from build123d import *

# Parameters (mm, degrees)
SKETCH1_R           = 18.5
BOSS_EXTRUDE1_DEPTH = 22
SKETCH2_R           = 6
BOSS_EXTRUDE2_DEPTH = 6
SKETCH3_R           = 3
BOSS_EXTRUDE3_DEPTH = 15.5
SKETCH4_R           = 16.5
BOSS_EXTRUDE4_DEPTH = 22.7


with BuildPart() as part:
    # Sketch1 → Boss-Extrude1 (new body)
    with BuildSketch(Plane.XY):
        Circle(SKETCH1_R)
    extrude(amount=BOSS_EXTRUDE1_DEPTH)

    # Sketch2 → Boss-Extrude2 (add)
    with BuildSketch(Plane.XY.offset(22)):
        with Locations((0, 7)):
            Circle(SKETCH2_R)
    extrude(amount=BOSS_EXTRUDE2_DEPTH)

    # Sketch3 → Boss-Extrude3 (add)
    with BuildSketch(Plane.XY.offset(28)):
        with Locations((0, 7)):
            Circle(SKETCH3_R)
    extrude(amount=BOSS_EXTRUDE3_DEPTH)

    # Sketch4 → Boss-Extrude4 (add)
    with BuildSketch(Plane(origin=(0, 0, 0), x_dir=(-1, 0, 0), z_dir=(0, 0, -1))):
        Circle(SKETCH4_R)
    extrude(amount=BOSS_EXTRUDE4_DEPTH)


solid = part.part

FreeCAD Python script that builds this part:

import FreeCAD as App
import Part
import Sketcher
Q = App.Units.Quantity

doc = App.newDocument("Part")
params = doc.addObject("Spreadsheet::Sheet", "Params")
for row, (alias, value) in enumerate([
    ("sketch1_diameter", "37 mm"),
    ("pad1_length", "22 mm"),
    ("sketch2_diameter", "12 mm"),
    ("pad2_length", "6 mm"),
    ("sketch3_diameter", "6 mm"),
    ("pad3_length", "15.5 mm"),
    ("sketch4_diameter", "33 mm"),
    ("pad4_length", "22.7 mm"),
], start=1):
    params.set(f"A{row}", alias)
    params.set(f"B{row}", "=" + value)
    params.setAlias(f"B{row}", alias)

body = doc.addObject("PartDesign::Body", "Body")

sketch1 = body.newObject("Sketcher::SketchObject", "Sketch")
sketch1.AttachmentSupport = (doc.getObject("XY_Plane"), [""])
sketch1.MapMode = "FlatFace"
sketch1.addGeometry(Part.Circle(App.Vector(0, 0, 0), App.Vector(0, 0, 1), 18), False)
sketch1.addConstraint(Sketcher.Constraint("Coincident", 0, 3, -1, 1))
sketch1.addConstraint(Sketcher.Constraint("Diameter", 0, Q("37 mm")))
sketch1.setExpression("Constraints[1]", "Params.sketch1_diameter")
pad1 = body.newObject("PartDesign::Pad", "Pad")
pad1.Profile = sketch1
pad1.setExpression("Length", "Params.pad1_length")

sketch2 = body.newObject("Sketcher::SketchObject", "Sketch001")
sketch2.AttachmentSupport = (doc.getObject("XY_Plane"), [""])
sketch2.MapMode = "FlatFace"
sketch2.AttachmentOffset = App.Placement(App.Vector(0, 0, 22), App.Rotation())
sketch2.addGeometry(Part.Circle(App.Vector(0, 7, 0), App.Vector(0, 0, 1), 6), False)
sketch2.addConstraint(Sketcher.Constraint("PointOnObject", 0, 3, -2))
sketch2.addConstraint(Sketcher.Constraint("Diameter", 0, Q("12 mm")))
sketch2.addConstraint(Sketcher.Constraint("DistanceY", -1, 1, 0, 3, Q("7 mm")))
sketch2.setExpression("Constraints[1]", "Params.sketch2_diameter")
pad2 = body.newObject("PartDesign::Pad", "Pad001")
pad2.Profile = sketch2
pad2.setExpression("Length", "Params.pad2_length")

sketch3 = body.newObject("Sketcher::SketchObject", "Sketch002")
sketch3.AttachmentSupport = (doc.getObject("XY_Plane"), [""])
sketch3.MapMode = "FlatFace"
sketch3.AttachmentOffset = App.Placement(App.Vector(0, 0, 28), App.Rotation())
sketch3.addGeometry(Part.Circle(App.Vector(0, 7, 0), App.Vector(0, 0, 1), 3), False)
sketch3.addConstraint(Sketcher.Constraint("PointOnObject", 0, 3, -2))
sketch3.addConstraint(Sketcher.Constraint("Diameter", 0, Q("6 mm")))
sketch3.addConstraint(Sketcher.Constraint("DistanceY", -1, 1, 0, 3, Q("7 mm")))
sketch3.setExpression("Constraints[1]", "Params.sketch3_diameter")
pad3 = body.newObject("PartDesign::Pad", "Pad002")
pad3.Profile = sketch3
pad3.setExpression("Length", "Params.pad3_length")

sketch4 = body.newObject("Sketcher::SketchObject", "Sketch003")
sketch4.AttachmentSupport = (doc.getObject("XY_Plane"), [""])
sketch4.MapMode = "FlatFace"
sketch4.addGeometry(Part.Circle(App.Vector(0, 0, 0), App.Vector(0, 0, 1), 16), False)
sketch4.addConstraint(Sketcher.Constraint("Coincident", 0, 3, -1, 1))
sketch4.addConstraint(Sketcher.Constraint("Diameter", 0, Q("33 mm")))
sketch4.setExpression("Constraints[1]", "Params.sketch4_diameter")
pad4 = body.newObject("PartDesign::Pad", "Pad003")
pad4.Profile = sketch4
pad4.setExpression("Length", "Params.pad4_length")
pad4.Reversed = True

doc.recompute()
